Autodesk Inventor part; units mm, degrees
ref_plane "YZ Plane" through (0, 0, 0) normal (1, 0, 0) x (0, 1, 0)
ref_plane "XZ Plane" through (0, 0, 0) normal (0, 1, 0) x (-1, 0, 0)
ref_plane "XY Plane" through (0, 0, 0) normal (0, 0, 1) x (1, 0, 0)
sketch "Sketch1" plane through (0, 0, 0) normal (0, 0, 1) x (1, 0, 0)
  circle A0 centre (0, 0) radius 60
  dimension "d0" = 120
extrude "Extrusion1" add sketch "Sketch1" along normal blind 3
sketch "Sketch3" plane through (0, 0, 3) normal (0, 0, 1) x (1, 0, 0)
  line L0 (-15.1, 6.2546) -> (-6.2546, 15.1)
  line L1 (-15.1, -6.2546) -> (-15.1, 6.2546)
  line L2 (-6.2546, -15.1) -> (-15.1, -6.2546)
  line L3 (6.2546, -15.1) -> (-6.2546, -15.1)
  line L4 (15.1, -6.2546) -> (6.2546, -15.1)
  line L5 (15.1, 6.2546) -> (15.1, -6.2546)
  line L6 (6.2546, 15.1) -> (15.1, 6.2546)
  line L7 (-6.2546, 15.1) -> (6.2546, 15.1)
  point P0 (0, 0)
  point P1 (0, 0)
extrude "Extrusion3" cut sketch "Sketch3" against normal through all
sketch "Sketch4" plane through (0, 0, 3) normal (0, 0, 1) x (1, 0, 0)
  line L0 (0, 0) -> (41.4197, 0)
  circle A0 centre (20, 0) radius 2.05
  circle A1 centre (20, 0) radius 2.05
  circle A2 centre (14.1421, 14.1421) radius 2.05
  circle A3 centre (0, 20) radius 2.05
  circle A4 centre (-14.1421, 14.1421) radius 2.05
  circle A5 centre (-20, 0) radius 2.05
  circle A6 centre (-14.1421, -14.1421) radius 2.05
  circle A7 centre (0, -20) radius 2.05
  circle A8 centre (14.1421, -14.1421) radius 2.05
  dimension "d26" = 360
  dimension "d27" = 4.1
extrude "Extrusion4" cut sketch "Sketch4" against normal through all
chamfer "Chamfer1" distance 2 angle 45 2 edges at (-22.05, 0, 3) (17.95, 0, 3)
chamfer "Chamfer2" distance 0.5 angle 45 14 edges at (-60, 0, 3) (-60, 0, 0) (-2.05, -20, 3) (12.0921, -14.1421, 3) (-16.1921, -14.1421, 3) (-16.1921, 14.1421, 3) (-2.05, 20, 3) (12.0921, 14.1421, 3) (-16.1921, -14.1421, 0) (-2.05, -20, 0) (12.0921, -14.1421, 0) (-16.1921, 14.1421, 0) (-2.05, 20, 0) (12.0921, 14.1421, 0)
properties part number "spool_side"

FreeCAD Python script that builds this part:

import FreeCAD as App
import Part
import Sketcher
from FreeCAD import Vector


def edges_at(feature, points):
    """Names of the edges that pass closest to the given points."""
    edges = feature.Shape.Edges
    near = lambda p: min(range(len(edges)), key=lambda i: edges[i].distToShape(Part.Vertex(*p))[0])
    return sorted({f"Edge{near(p) + 1}" for p in points})

doc = App.newDocument("Part")
body = doc.addObject("PartDesign::Body", "Body")

# Sketch on XY plane
sketch1 = body.newObject("Sketcher::SketchObject", "Sketch")
sketch1.AttachmentSupport = (doc.getObject("XY_Plane"), [""])
sketch1.MapMode = "FlatFace"
sketch1.addGeometry(Part.Circle(Vector(0, 0, 0), Vector(0, 0, 1), 60), False)
sketch1.addConstraint(Sketcher.Constraint("Coincident", 0, 3, -1, 1))
sketch1.addConstraint(Sketcher.Constraint("Diameter", 0, 120.0))
pad1 = body.newObject("PartDesign::Pad", "Pad")
pad1.Profile = sketch1
pad1.Length = 3

# Sketch on XY plane
sketch2 = body.newObject("Sketcher::SketchObject", "Sketch001")
sketch2.AttachmentSupport = (doc.getObject("XY_Plane"), [""])
sketch2.MapMode = "FlatFace"
sketch2.AttachmentOffset = App.Placement(Vector(0, 0, 3), App.Rotation())
sketch2.addGeometry(Part.LineSegment(Vector(-6, 15, 0), Vector(-15, 6, 0)), False)
sketch2.addGeometry(Part.LineSegment(Vector(-15, 6, 0), Vector(-15, -6, 0)), False)
sketch2.addGeometry(Part.LineSegment(Vector(-15, -6, 0), Vector(-6, -15, 0)), False)
sketch2.addGeometry(Part.LineSegment(Vector(-6, -15, 0), Vector(6, -15, 0)), False)
sketch2.addGeometry(Part.LineSegment(Vector(6, -15, 0), Vector(15, -6, 0)), False)
sketch2.addGeometry(Part.LineSegment(Vector(15, -6, 0), Vector(15, 6, 0)), False)
sketch2.addGeometry(Part.LineSegment(Vector(15, 6, 0), Vector(6, 15, 0)), False)
sketch2.addGeometry(Part.LineSegment(Vector(6, 15, 0), Vector(-6, 15, 0)), False)
sketch2.addConstraint(Sketcher.Constraint("Coincident", 0, 2, 1, 1))
sketch2.addConstraint(Sketcher.Constraint("Coincident", 1, 2, 2, 1))
sketch2.addConstraint(Sketcher.Constraint("Coincident", 2, 2, 3, 1))
sketch2.addConstraint(Sketcher.Constraint("Coincident", 3, 2, 4, 1))
sketch2.addConstraint(Sketcher.Constraint("Coincident", 4, 2, 5, 1))
sketch2.addConstraint(Sketcher.Constraint("Coincident", 5, 2, 6, 1))
sketch2.addConstraint(Sketcher.Constraint("Coincident", 6, 2, 7, 1))
sketch2.addConstraint(Sketcher.Constraint("Coincident", 7, 2, 0, 1))
sketch2.addConstraint(Sketcher.Constraint("Vertical", 1))
sketch2.addConstraint(Sketcher.Constraint("Horizontal", 3))
sketch2.addConstraint(Sketcher.Constraint("Vertical", 5))
sketch2.addConstraint(Sketcher.Constraint("Horizontal", 7))
sketch2.addConstraint(Sketcher.Constraint("Symmetric", 0, 2, 4, 2, -1, 1))
sketch2.addConstraint(Sketcher.Constraint("Symmetric", 2, 2, 6, 2, -1, 1))
sketch2.addConstraint(Sketcher.Constraint("Perpendicular", 0, 2))
sketch2.addConstraint(Sketcher.Constraint("Perpendicular", 2, 4))
sketch2.addConstraint(Sketcher.Constraint("Perpendicular", 4, 6))
sketch2.addConstraint(Sketcher.Constraint("Horizontal", 1, 2, 4, 2))
sketch2.addConstraint(Sketcher.Constraint("Vertical", 3, 2, 6, 2))
sketch2.addConstraint(Sketcher.Constraint("Equal", 7, 1))
sketch2.addConstraint(Sketcher.Constraint("DistanceX", 0, 2, -1, 1, 15.1))
sketch2.addConstraint(Sketcher.Constraint("DistanceX", 3, 1, 3, 2, 12.5092))
pocket1 = body.newObject("PartDesign::Pocket", "Pocket")
pocket1.Profile = sketch2
pocket1.Type = "ThroughAll"

# Sketch on XY plane
sketch3 = body.newObject("Sketcher::SketchObject", "Sketch002")
sketch3.AttachmentSupport = (doc.getObject("XY_Plane"), [""])
sketch3.MapMode = "FlatFace"
sketch3.AttachmentOffset = App.Placement(Vector(0, 0, 3), App.Rotation())
sketch3.addGeometry(Part.Circle(Vector(20, 0, 0), Vector(0, 0, 1), 2), False)
sketch3.addGeometry(Part.Circle(Vector(14.1, 14.1, 0), Vector(0, 0, 1), 2), False)
sketch3.addGeometry(Part.Circle(Vector(0, 20, 0), Vector(0, 0, 1), 2), False)
sketch3.addGeometry(Part.Circle(Vector(-14.1, 14.1, 0), Vector(0, 0, 1), 2), False)
sketch3.addGeometry(Part.Circle(Vector(-20, 0, 0), Vector(0, 0, 1), 2), False)
sketch3.addGeometry(Part.Circle(Vector(-14.1, -14.1, 0), Vector(0, 0, 1), 2), False)
sketch3.addGeometry(Part.Circle(Vector(0, -20, 0), Vector(0, 0, 1), 2), False)
sketch3.addGeometry(Part.Circle(Vector(14.1, -14.1, 0), Vector(0, 0, 1), 2), False)
sketch3.addConstraint(Sketcher.Constraint("Equal", 0, 1))
sketch3.addConstraint(Sketcher.Constraint("Equal", 1, 2))
sketch3.addConstraint(Sketcher.Constraint("Equal", 2, 3))
sketch3.addConstraint(Sketcher.Constraint("Equal", 3, 4))
sketch3.addConstraint(Sketcher.Constraint("Equal", 4, 5))
sketch3.addConstraint(Sketcher.Constraint("Equal", 5, 6))
sketch3.addConstraint(Sketcher.Constraint("Equal", 6, 7))
sketch3.addConstraint(Sketcher.Constraint("Symmetric", 0, 3, 4, 3, -1, 1))
sketch3.addConstraint(Sketcher.Constraint("Symmetric", 1, 3, 5, 3, -1, 1))
sketch3.addConstraint(Sketcher.Constraint("Symmetric", 2, 3, 6, 3, -1, 1))
sketch3.addConstraint(Sketcher.Constraint("Symmetric", 3, 3, 7, 3, -1, 1))
sketch3.addConstraint(Sketcher.Constraint("Symmetric", 1, 3, 3, 3, -2))
sketch3.addConstraint(Sketcher.Constraint("PointOnObject", 0, 3, -1))
sketch3.addConstraint(Sketcher.Constraint("PointOnObject", 2, 3, -2))
sketch3.addConstraint(Sketcher.Constraint("Diameter", 0, 4.1))
sketch3.addConstraint(Sketcher.Constraint("DistanceX", -1, 1, 0, 3, 20.0))
sketch3.addConstraint(Sketcher.Constraint("DistanceY", -1, 1, 2, 3, 20.0))
sketch3.addConstraint(Sketcher.Constraint("DistanceX", -1, 1, 1, 3, 14.142))
sketch3.addConstraint(Sketcher.Constraint("DistanceY", -1, 1, 1, 3, 14.142))
pocket2 = body.newObject("PartDesign::Pocket", "Pocket001")
pocket2.Profile = sketch3
pocket2.Type = "ThroughAll"
doc.recompute()

chamfer = body.newObject("PartDesign::Chamfer", "Chamfer")
chamfer.Base = (pocket2, edges_at(pocket2, [(-22.05, 0, 3), (17.95, 0, 3)]))
chamfer.Size = 2
doc.recompute()

chamfer2 = body.newObject("PartDesign::Chamfer", "Chamfer001")
chamfer2.Base = (chamfer, edges_at(chamfer, [
    (-60, 0, 3),
    (-60, 0, 0),
    (-2.05, -20, 3),
    (12.092, -14.142, 3),
    (-16.192, -14.142, 3),
    (-16.192, 14.142, 3),
    (-2.05, 20, 3),
    (12.092, 14.142, 3),
    (-16.192, -14.142, 0),
    (-2.05, -20, 0),
    (12.092, -14.142, 0),
    (-16.192, 14.142, 0),
    (-2.05, 20, 0),
    (12.092, 14.142, 0),
]))
chamfer2.Size = 0.5

doc.recompute()
